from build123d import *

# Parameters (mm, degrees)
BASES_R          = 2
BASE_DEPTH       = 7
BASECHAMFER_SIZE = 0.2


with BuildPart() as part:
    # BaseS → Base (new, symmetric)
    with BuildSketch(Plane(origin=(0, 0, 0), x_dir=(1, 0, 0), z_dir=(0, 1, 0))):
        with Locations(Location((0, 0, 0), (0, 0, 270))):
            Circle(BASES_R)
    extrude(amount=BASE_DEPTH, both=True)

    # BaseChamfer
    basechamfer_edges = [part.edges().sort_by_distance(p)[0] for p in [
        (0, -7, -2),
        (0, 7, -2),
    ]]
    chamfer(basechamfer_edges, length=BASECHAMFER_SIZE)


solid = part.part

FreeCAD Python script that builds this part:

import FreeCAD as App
import Part
import Sketcher

V = App.Vector
Q = App.Units.Quantity


def edges_at(feature, points):
    """Names of the edges that pass closest to the given points."""
    edges = feature.Shape.Edges
    near = lambda p: min(range(len(edges)), key=lambda i: edges[i].distToShape(Part.Vertex(*p))[0])
    return sorted({f"Edge{near(p) + 1}" for p in points})

doc = App.newDocument("Part")
body = doc.addObject("PartDesign::Body", "Body")

# Sketch on XZ plane
sketch1 = doc.addObject("Sketcher::SketchObject", "Sketch")
body.addObject(sketch1)
sketch1.AttachmentSupport = (doc.XZ_Plane, [""])
sketch1.MapMode = "FlatFace"
sketch1.addGeometry(Part.Circle(V(0, 0, 0), V(0, 0, 1), 2), False)
sketch1.addConstraint(Sketcher.Constraint("Coincident", 0, 3, -1, 1))
sketch1.addConstraint(Sketcher.Constraint("Diameter", 0, Q("4 mm")))
pad1 = doc.addObject("PartDesign::Pad", "Pad")
body.addObject(pad1)
pad1.Profile = sketch1
pad1.Length = 14
pad1.Midplane = True
doc.recompute()

chamfer = doc.addObject("PartDesign::Chamfer", "Chamfer")
body.addObject(chamfer)
chamfer.Base = (pad1, edges_at(pad1, [(0, -7, -2), (0, 7, -2)]))
chamfer.Size = 0.2

doc.recompute()
